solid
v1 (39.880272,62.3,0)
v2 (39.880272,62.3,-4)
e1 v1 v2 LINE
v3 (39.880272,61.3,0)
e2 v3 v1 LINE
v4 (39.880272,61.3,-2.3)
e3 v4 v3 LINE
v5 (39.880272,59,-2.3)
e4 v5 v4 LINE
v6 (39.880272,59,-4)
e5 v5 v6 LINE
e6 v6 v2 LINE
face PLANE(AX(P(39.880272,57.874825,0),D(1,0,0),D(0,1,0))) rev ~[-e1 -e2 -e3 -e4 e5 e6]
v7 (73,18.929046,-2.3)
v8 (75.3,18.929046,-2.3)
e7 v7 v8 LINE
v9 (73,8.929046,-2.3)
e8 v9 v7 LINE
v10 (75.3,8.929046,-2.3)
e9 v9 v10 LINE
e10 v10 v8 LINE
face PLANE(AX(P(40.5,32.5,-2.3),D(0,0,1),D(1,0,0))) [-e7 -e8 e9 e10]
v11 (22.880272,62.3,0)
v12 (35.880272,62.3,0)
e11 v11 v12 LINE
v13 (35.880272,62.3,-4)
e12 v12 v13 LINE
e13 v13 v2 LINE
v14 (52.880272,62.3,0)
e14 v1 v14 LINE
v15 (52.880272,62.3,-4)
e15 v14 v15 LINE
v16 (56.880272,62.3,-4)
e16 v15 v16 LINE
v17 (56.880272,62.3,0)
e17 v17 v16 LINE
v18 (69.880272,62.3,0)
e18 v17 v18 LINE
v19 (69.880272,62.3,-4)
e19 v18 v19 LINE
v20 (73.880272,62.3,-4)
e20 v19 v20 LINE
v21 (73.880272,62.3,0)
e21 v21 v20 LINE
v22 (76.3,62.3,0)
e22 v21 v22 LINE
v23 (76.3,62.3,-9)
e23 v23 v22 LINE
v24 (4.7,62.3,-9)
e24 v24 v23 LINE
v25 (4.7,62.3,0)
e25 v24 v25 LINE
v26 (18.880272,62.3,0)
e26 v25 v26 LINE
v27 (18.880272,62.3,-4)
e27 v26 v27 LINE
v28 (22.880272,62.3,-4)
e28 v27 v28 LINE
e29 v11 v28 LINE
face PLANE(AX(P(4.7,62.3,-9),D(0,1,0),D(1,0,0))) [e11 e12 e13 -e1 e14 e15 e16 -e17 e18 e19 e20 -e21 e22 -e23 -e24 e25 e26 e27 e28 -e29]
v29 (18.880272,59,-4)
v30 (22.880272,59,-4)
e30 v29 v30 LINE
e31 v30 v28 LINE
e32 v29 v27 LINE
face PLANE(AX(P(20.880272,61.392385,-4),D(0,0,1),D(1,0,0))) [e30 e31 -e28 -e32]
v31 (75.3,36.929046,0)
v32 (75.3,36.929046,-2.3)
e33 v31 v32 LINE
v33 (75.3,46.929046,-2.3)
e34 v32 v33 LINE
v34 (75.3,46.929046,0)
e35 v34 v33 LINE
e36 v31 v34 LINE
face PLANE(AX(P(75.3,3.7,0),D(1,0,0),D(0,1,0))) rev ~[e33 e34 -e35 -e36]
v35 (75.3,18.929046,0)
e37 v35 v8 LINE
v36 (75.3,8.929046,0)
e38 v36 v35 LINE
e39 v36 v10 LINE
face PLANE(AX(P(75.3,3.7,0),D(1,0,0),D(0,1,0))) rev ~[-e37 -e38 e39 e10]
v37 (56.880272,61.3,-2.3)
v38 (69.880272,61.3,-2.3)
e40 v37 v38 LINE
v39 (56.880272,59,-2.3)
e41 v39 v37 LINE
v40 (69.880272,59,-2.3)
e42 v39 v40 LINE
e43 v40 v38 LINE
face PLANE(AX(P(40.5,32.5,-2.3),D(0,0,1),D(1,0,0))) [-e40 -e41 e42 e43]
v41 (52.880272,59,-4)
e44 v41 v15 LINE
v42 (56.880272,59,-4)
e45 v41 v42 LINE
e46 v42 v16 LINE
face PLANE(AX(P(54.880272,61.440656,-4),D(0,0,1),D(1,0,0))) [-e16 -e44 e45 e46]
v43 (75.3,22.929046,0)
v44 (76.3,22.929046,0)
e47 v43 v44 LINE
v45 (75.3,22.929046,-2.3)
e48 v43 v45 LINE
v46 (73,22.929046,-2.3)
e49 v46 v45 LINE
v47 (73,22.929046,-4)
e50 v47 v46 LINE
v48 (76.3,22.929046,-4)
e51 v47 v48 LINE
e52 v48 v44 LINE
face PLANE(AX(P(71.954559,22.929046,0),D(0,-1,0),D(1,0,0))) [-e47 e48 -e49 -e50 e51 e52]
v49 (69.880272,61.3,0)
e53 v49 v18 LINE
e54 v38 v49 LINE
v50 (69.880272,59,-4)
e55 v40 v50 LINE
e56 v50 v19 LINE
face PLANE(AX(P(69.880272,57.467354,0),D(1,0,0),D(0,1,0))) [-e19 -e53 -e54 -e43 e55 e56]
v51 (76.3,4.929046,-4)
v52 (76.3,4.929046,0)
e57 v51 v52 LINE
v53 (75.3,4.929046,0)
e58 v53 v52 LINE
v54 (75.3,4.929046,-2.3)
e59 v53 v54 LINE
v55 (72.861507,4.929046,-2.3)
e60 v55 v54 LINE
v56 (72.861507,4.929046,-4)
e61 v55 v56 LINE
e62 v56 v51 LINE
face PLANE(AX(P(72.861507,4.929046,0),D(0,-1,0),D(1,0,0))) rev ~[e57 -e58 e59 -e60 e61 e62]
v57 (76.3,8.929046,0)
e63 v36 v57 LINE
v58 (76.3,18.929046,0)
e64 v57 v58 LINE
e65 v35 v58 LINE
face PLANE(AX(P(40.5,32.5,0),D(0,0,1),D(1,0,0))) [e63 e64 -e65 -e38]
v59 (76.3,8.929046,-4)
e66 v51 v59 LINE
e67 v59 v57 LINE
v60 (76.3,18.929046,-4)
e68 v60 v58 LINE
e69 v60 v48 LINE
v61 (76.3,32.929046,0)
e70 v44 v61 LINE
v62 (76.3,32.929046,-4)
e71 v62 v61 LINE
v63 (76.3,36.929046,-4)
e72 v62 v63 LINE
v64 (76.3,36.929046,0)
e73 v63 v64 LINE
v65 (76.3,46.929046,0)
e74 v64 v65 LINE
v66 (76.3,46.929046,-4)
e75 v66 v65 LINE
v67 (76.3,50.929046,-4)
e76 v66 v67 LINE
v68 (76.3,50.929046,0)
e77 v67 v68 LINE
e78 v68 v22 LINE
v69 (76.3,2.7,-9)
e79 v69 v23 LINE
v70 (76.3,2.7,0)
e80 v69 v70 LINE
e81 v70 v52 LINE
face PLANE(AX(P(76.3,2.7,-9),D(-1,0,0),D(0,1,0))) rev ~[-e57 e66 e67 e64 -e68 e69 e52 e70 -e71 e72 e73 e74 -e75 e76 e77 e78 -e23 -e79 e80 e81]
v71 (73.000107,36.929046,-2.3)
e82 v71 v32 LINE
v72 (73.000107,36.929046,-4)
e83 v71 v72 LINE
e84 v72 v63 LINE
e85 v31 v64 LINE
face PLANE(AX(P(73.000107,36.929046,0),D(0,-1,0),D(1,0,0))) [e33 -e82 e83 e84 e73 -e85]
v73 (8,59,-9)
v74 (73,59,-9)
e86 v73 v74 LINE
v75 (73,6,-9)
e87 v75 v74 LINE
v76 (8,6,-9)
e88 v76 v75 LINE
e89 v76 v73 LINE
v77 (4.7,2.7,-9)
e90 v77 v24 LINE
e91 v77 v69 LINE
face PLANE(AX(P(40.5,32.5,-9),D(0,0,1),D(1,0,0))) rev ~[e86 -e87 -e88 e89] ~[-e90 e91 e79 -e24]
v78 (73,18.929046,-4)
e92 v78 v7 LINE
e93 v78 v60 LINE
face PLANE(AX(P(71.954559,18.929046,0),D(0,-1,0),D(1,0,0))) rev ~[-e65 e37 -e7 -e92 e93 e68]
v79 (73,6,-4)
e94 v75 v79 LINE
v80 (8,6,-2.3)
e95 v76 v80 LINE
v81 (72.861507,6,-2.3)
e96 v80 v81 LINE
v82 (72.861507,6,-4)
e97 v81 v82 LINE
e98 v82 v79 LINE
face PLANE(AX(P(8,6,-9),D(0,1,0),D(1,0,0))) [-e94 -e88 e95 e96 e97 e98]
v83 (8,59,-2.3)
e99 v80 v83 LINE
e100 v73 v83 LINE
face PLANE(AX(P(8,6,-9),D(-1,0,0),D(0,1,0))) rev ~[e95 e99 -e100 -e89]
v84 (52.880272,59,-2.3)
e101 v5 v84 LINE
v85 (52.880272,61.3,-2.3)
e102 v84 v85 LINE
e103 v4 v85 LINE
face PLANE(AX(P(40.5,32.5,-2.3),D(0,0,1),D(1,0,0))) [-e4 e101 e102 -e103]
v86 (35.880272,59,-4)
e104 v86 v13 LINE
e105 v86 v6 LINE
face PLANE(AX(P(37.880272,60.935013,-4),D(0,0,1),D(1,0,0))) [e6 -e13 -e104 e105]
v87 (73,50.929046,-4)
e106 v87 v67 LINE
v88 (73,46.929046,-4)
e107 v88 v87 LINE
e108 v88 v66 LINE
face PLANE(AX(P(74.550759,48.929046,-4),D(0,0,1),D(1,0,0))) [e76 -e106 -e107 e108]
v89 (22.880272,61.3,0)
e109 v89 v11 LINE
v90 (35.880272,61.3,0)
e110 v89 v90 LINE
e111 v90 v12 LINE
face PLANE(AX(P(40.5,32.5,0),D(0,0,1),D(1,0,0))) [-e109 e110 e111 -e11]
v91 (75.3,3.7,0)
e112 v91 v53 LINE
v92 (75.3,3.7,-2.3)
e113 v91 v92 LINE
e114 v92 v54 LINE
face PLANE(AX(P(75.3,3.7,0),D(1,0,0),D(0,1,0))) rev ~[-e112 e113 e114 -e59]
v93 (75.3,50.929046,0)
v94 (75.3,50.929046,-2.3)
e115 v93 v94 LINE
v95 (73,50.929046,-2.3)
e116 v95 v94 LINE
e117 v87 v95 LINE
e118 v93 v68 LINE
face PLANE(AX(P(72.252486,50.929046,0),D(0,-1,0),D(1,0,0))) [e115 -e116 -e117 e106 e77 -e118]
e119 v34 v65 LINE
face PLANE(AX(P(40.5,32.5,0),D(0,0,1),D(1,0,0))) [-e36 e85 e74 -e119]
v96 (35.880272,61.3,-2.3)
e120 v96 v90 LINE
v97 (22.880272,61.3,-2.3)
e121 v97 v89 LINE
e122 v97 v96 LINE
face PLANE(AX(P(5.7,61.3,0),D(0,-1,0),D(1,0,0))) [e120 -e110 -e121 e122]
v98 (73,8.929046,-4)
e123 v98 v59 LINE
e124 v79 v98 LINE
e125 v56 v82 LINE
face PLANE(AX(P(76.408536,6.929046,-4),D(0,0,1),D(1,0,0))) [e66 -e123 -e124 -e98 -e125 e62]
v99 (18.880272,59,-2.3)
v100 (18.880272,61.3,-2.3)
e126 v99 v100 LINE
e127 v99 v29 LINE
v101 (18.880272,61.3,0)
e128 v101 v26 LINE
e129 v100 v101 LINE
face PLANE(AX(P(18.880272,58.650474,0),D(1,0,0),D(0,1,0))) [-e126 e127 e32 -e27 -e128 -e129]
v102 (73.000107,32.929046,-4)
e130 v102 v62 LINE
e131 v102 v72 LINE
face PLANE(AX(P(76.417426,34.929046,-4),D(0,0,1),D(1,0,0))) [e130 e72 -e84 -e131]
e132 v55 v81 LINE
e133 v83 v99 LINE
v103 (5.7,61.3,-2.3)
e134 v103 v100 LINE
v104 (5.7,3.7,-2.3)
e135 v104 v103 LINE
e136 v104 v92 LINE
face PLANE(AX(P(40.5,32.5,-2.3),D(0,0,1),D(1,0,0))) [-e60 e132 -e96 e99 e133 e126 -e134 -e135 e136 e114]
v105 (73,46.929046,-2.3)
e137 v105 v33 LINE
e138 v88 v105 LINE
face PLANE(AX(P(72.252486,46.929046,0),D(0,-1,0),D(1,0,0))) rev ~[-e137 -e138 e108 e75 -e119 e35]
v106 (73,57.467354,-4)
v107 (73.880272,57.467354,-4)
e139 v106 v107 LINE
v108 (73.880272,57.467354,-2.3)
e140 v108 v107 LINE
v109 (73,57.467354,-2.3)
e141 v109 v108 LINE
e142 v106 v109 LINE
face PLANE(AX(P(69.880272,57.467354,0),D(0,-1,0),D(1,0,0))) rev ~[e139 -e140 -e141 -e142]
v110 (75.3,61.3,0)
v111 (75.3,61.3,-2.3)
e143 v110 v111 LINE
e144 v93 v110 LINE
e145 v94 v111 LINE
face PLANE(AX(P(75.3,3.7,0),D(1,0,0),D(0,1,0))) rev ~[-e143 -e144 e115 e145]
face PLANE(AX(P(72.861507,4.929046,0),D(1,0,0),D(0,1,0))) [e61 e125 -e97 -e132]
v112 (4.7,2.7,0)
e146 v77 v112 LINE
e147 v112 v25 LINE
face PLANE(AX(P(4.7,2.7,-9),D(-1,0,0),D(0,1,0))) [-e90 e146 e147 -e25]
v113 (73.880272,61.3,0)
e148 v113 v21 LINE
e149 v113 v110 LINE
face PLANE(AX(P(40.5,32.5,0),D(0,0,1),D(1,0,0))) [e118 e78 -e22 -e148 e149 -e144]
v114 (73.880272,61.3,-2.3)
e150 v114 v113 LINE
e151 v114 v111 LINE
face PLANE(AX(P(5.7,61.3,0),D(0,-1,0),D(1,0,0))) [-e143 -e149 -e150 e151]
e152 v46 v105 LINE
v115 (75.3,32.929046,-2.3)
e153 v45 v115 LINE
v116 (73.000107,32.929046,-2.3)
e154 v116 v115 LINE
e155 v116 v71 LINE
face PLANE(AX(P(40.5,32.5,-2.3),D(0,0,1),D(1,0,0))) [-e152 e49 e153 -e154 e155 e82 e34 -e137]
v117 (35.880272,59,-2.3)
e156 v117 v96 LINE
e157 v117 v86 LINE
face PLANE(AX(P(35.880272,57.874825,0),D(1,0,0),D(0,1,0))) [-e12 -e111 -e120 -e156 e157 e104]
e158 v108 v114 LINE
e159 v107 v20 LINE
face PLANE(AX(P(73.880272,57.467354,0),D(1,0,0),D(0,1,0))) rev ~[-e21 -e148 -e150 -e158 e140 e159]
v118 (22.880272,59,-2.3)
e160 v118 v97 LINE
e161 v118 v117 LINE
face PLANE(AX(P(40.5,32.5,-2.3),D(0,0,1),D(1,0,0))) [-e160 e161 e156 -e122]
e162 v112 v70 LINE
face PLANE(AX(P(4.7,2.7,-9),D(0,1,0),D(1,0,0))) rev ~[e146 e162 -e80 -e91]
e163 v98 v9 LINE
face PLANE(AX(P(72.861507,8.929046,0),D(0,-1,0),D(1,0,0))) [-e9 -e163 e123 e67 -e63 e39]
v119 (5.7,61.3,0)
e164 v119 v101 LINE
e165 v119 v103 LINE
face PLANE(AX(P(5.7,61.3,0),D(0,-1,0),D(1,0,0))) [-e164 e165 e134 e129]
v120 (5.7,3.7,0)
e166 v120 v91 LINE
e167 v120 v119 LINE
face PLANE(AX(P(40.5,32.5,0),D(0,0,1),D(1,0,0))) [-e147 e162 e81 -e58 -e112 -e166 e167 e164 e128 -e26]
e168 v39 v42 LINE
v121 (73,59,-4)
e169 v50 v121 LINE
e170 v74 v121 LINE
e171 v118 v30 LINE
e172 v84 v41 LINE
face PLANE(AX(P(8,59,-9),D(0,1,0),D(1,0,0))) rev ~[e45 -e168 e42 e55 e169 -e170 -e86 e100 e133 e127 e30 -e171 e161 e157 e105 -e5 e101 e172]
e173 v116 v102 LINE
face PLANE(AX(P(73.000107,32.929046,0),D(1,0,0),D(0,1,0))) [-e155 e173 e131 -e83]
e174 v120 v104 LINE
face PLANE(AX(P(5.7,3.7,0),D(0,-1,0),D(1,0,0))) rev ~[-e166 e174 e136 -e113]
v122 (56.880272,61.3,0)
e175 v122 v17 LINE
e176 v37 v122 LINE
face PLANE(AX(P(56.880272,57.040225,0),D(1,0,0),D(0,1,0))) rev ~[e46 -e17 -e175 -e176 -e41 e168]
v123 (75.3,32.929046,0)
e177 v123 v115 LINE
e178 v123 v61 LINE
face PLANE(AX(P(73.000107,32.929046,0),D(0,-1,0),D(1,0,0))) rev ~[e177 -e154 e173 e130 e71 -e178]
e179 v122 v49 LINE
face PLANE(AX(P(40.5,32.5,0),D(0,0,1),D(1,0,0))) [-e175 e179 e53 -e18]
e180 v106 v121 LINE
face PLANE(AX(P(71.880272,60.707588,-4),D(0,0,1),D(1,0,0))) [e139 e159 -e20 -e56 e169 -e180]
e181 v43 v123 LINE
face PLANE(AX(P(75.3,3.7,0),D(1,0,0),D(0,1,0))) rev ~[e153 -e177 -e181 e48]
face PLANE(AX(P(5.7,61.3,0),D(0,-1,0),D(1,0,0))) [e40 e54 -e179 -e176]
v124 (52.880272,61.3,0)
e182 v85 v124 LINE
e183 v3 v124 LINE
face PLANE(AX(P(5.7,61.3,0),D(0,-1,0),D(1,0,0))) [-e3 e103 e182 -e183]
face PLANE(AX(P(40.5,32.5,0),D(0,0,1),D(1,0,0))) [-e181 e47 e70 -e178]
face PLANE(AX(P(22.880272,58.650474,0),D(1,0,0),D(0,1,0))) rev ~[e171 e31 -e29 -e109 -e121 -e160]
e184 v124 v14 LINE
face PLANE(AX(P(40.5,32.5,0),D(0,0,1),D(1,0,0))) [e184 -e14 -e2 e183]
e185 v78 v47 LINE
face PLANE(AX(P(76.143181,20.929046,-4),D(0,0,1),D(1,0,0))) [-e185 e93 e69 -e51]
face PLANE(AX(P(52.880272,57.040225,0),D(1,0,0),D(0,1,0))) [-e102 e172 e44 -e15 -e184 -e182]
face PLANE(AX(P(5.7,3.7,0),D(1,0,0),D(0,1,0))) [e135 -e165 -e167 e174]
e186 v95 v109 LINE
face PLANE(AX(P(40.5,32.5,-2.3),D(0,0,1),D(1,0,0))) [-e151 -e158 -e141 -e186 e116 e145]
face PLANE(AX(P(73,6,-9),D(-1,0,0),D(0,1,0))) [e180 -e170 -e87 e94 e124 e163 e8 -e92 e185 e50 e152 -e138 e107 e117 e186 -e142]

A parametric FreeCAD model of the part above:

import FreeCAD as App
import Part
import Sketcher

V = App.Vector
Q = App.Units.Quantity


def add_polygon(sketch, points):
    """Adds a closed chain of lines whose ends are joined by coincident constraints."""
    first, n = sketch.GeometryCount, len(points)
    for a, b in zip(points, points[1:] + points[:1]):
        sketch.addGeometry(Part.LineSegment(App.Vector(*a, 0), App.Vector(*b, 0)), False)
    for i in range(n):
        sketch.addConstraint(Sketcher.Constraint("Coincident", first + i, 2, first + (i + 1) % n, 1))

doc = App.newDocument("Part")
body = doc.addObject("PartDesign::Body", "Body")

# Sketch on XY plane
sketch1 = body.newObject("Sketcher::SketchObject", "Sketch")
sketch1.AttachmentSupport = (doc.getObject("XY_Plane"), [""])
sketch1.MapMode = "FlatFace"
add_polygon(sketch1, [(-3.3, 56.3), (-3.3, -3.3), (68.3, -3.3), (68.3, 56.3)])  # lines 0-3
add_polygon(sketch1, [(65, 0), (0, 0), (0, 53), (65, 53)])  # lines 4-7
sketch1.addConstraint([
    Sketcher.Constraint("Vertical", 0),
    Sketcher.Constraint("Horizontal", 1),
    Sketcher.Constraint("Vertical", 2),
    Sketcher.Constraint("Horizontal", 3),
    Sketcher.Constraint("Horizontal", 4),
    Sketcher.Constraint("Vertical", 5),
    Sketcher.Constraint("Horizontal", 6),
    Sketcher.Constraint("Vertical", 7),
    Sketcher.Constraint("Coincident", 4, 2, -1, 1),
    Sketcher.Constraint("DistanceX", 4, 2, 4, 1, Q("65 mm")),
    Sketcher.Constraint("DistanceY", 5, 1, 5, 2, Q("53 mm")),
    Sketcher.Constraint("DistanceX", 1, 1, 1, 2, Q("71.6 mm")),
    Sketcher.Constraint("DistanceY", 0, 2, 0, 1, Q("59.6 mm")),
    Sketcher.Constraint("DistanceX", 0, 2, -1, 1, Q("3.3 mm")),
    Sketcher.Constraint("DistanceY", 0, 2, -1, 1, Q("3.3 mm")),
])
pad1 = body.newObject("PartDesign::Pad", "Pad")
pad1.Profile = sketch1
pad1.Length = 9

# Sketch on XY plane
sketch2 = body.newObject("Sketcher::SketchObject", "Sketch001")
sketch2.AttachmentSupport = (doc.getObject("XY_Plane"), [""])
sketch2.MapMode = "FlatFace"
sketch2.AttachmentOffset = App.Placement(V(0, 0, 9), App.Rotation())
add_polygon(sketch2, [(-2.3, 55.3), (-2.3, -2.3), (67.3, -2.3), (67.3, 55.3)])  # lines 0-3
sketch2.addConstraint([
    Sketcher.Constraint("Vertical", 0),
    Sketcher.Constraint("Horizontal", 1),
    Sketcher.Constraint("Vertical", 2),
    Sketcher.Constraint("Horizontal", 3),
    Sketcher.Constraint("DistanceX", 1, 1, 1, 2, Q("69.6 mm")),
    Sketcher.Constraint("DistanceY", 0, 2, 0, 1, Q("57.6 mm")),
    Sketcher.Constraint("DistanceX", 0, 2, -1, 1, Q("2.3 mm")),
    Sketcher.Constraint("DistanceY", 0, 2, -1, 1, Q("2.3 mm")),
])
pocket1 = body.newObject("PartDesign::Pocket", "Pocket")
pocket1.Profile = sketch2
pocket1.Length = 2.3

# Sketch on XY plane
sketch3 = body.newObject("Sketcher::SketchObject", "Sketch002")
sketch3.AttachmentSupport = (doc.getObject("XY_Plane"), [""])
sketch3.MapMode = "FlatFace"
sketch3.AttachmentOffset = App.Placement(V(0, 0, 9), App.Rotation())
add_polygon(sketch3, [(10.880272, 58.134296), (10.880272, 52.650474), (14.880272, 52.650474), (14.880272, 58.134296)])  # lines 0-3
add_polygon(sketch3, [(27.880272, 57.995201), (27.880272, 51.874825), (31.880272, 51.874825), (31.880272, 57.995201)])  # lines 4-7
add_polygon(sketch3, [(44.880272, 59.841087), (44.880272, 51.040225), (48.880272, 51.040225), (48.880272, 59.841087)])  # lines 8-11
add_polygon(sketch3, [(61.880272, 57.947823), (61.880272, 51.467354), (65.880272, 51.467354), (65.880272, 57.947823)])  # lines 12-15
add_polygon(sketch3, [(64.252486, 44.929046), (64.252486, 40.929046), (68.849033, 40.929046), (68.849033, 44.929046)])  # lines 16-19
add_polygon(sketch3, [(65.000107, 30.929046), (65.000107, 26.929046), (71.834744, 26.929046), (71.834744, 30.929046)])  # lines 20-23
add_polygon(sketch3, [(63.954558, 16.929046), (63.954558, 12.929046), (72.331804, 12.929046), (72.331804, 16.929046)])  # lines 24-27
add_polygon(sketch3, [(64.861507, 2.929046), (64.861507, -1.070954), (71.955566, -1.070954), (71.955566, 2.929046)])  # lines 28-31
sketch3.addConstraint([
    Sketcher.Constraint("Vertical", 0),
    Sketcher.Constraint("Horizontal", 1),
    Sketcher.Constraint("Vertical", 2),
    Sketcher.Constraint("Horizontal", 3),
    Sketcher.Constraint("Vertical", 4),
    Sketcher.Constraint("Horizontal", 5),
    Sketcher.Constraint("Vertical", 6),
    Sketcher.Constraint("Horizontal", 7),
    Sketcher.Constraint("Vertical", 8),
    Sketcher.Constraint("Horizontal", 9),
    Sketcher.Constraint("Vertical", 10),
    Sketcher.Constraint("Horizontal", 11),
    Sketcher.Constraint("Vertical", 12),
    Sketcher.Constraint("Horizontal", 13),
    Sketcher.Constraint("Vertical", 14),
    Sketcher.Constraint("Horizontal", 15),
    Sketcher.Constraint("Vertical", 16),
    Sketcher.Constraint("Horizontal", 17),
    Sketcher.Constraint("Vertical", 18),
    Sketcher.Constraint("Horizontal", 19),
    Sketcher.Constraint("Vertical", 20),
    Sketcher.Constraint("Horizontal", 21),
    Sketcher.Constraint("Vertical", 22),
    Sketcher.Constraint("Horizontal", 23),
    Sketcher.Constraint("Vertical", 24),
    Sketcher.Constraint("Horizontal", 25),
    Sketcher.Constraint("Vertical", 26),
    Sketcher.Constraint("Horizontal", 27),
    Sketcher.Constraint("Vertical", 28),
    Sketcher.Constraint("Horizontal", 29),
    Sketcher.Constraint("Vertical", 30),
    Sketcher.Constraint("Horizontal", 31),
    Sketcher.Constraint("Equal", 3, 5),
    Sketcher.Constraint("Equal", 7, 9),
    Sketcher.Constraint("Equal", 11, 13),
    Sketcher.Constraint("Equal", 15, 16),
    Sketcher.Constraint("Equal", 18, 20),
    Sketcher.Constraint("Equal", 22, 24),
    Sketcher.Constraint("Equal", 26, 28),
    Sketcher.Constraint("DistanceX", 1, 1, 1, 2, Q("4 mm")),
    Sketcher.Constraint("DistanceX", 1, 2, 4, 2, Q("13 mm")),
    Sketcher.Constraint("DistanceX", 5, 2, 8, 2, Q("13 mm")),
    Sketcher.Constraint("DistanceX", 9, 2, 12, 2, Q("13 mm")),
    Sketcher.Constraint("DistanceY", 20, 2, 16, 2, Q("14 mm")),
    Sketcher.Constraint("DistanceY", 24, 2, 20, 2, Q("14 mm")),
    Sketcher.Constraint("DistanceY", 28, 2, 24, 2, Q("14 mm")),
    Sketcher.Constraint("DistanceX", 29, 1, 29, 2, Q("7.094059 mm")),
    Sketcher.Constraint("DistanceY", 0, 2, 0, 1, Q("5.483822 mm")),
    Sketcher.Constraint("DistanceY", 8, 2, 8, 1, Q("8.800861 mm")),
    Sketcher.Constraint("DistanceY", 12, 2, 12, 1, Q("6.480469 mm")),
    Sketcher.Constraint("DistanceY", -1, 1, 6, 2, Q("57.995201 mm")),
    Sketcher.Constraint("DistanceY", 8, 2, 5, 2, Q("0.8346 mm")),
    Sketcher.Constraint("DistanceX", 28, 2, 20, 2, Q("0.138601 mm")),
    Sketcher.Constraint("DistanceX", 17, 1, 17, 2, Q("4.596547 mm")),
    Sketcher.Constraint("DistanceX", 21, 1, 21, 2, Q("6.834637 mm")),
    Sketcher.Constraint("DistanceX", 25, 1, 25, 2, Q("8.377245 mm")),
    Sketcher.Constraint("DistanceY", 4, 2, 4, 1, Q("6.120376 mm")),
    Sketcher.Constraint("DistanceX", -1, 1, 8, 2, Q("44.880272 mm")),
    Sketcher.Constraint("DistanceX", -1, 1, 24, 2, Q("63.954558 mm")),
    Sketcher.Constraint("DistanceY", 4, 2, 1, 2, Q("0.775649 mm")),
    Sketcher.Constraint("DistanceY", 9, 2, 12, 2, Q("0.427128 mm")),
    Sketcher.Constraint("DistanceY", 16, 2, 9, 2, Q("10.111179 mm")),
    Sketcher.Constraint("DistanceX", 13, 2, 17, 2, Q("2.968761 mm")),
    Sketcher.Constraint("DistanceX", 16, 2, 20, 2, Q("0.747622 mm")),
])
pocket2 = body.newObject("PartDesign::Pocket", "Pocket001")
pocket2.Profile = sketch3
pocket2.Length = 4
body2 = doc.addObject("PartDesign::Body", "Body001")
doc.recompute()

body.Placement = App.Placement(V(8, 6, -9), App.Rotation(V(0, 0, 1), 0))
boolean = body2.newObject("PartDesign::Boolean", "Boolean")
boolean.Type = "Fuse"
boolean.addObjects([body])

doc.recompute()
